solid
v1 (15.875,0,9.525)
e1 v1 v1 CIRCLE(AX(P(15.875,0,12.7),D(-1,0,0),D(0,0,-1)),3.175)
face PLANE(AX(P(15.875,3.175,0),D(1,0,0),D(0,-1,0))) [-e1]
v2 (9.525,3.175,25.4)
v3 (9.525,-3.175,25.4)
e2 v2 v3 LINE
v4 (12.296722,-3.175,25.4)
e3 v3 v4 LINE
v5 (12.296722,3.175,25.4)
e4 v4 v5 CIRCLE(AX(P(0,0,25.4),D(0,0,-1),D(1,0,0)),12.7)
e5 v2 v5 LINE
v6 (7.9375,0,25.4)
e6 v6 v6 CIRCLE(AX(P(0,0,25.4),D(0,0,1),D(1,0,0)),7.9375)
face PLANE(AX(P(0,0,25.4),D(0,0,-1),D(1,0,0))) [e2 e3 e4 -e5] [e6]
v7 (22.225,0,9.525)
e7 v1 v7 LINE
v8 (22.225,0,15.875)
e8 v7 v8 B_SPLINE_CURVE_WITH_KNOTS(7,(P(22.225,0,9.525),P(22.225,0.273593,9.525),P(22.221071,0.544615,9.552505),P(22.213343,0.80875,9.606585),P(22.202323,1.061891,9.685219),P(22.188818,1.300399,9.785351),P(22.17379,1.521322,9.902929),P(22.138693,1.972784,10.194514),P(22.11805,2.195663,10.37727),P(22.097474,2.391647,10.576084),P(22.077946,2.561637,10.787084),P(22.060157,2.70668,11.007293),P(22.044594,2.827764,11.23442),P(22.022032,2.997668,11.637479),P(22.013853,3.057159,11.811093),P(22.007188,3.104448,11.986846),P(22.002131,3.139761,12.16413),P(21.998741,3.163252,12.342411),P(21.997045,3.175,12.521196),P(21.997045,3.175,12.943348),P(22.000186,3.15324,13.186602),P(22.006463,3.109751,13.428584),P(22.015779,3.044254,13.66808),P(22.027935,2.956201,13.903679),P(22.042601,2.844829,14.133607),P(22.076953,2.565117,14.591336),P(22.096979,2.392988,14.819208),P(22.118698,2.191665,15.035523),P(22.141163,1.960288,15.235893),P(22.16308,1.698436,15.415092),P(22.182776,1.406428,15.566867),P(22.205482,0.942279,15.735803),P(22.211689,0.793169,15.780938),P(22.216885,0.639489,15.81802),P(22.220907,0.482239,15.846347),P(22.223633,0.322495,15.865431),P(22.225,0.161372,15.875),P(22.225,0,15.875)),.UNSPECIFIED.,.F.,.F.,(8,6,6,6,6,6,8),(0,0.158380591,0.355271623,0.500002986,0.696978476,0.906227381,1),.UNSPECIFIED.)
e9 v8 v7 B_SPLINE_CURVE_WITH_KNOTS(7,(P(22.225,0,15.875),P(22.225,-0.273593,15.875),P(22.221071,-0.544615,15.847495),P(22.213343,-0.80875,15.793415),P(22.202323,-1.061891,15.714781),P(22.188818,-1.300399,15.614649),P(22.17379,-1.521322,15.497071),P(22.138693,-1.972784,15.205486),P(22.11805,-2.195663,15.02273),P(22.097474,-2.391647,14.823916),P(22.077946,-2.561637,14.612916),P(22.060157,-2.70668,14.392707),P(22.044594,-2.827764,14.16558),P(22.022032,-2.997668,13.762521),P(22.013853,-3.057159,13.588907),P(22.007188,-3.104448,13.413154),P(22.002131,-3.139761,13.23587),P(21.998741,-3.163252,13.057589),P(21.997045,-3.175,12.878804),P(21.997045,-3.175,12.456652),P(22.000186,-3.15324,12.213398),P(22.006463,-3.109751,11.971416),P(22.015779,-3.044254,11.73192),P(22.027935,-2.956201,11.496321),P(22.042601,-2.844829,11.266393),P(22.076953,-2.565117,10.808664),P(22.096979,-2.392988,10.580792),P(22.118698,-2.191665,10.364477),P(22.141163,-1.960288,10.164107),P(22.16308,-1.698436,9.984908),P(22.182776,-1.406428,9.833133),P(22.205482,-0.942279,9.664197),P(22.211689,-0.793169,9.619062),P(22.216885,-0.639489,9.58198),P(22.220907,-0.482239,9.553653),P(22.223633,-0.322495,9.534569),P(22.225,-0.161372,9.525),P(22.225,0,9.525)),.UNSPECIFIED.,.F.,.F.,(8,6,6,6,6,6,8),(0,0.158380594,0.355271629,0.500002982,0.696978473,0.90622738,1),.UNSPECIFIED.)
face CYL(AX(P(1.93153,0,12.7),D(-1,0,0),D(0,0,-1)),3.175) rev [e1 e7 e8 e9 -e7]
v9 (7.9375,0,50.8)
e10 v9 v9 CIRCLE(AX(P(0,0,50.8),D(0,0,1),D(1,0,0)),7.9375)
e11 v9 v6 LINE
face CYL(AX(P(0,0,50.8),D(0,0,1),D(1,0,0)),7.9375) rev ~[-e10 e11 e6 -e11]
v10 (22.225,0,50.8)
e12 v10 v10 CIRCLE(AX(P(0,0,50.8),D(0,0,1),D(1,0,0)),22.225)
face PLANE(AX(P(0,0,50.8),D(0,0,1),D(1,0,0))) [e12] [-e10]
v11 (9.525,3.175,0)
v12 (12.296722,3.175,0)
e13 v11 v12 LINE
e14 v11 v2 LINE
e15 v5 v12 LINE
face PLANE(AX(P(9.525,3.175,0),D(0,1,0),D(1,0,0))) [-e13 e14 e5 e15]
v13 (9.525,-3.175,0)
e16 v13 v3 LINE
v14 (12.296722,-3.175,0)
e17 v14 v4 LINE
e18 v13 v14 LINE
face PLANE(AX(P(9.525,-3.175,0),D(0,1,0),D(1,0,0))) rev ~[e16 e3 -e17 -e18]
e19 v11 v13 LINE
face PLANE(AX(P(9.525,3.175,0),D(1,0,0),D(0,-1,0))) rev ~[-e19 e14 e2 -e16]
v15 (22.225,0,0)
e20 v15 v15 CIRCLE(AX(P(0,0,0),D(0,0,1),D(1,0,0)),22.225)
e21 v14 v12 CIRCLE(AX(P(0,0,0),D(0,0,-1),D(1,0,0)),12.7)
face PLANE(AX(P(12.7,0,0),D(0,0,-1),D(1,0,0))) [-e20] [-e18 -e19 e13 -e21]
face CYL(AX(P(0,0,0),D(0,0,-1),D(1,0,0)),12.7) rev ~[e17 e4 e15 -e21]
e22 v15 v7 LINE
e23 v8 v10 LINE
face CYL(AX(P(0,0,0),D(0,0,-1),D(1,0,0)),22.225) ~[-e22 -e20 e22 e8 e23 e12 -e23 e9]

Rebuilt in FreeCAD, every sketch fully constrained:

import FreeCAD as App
import Part
import Sketcher

V = App.Vector
Q = App.Units.Quantity

doc = App.newDocument("Part")
params = doc.addObject("Spreadsheet::Sheet", "Params")
for row, (alias, value) in enumerate([
    ("sketch1_diameter", "0.25 in"),
    ("pad1_length", "1 in"),
    ("sketch2_diameter", "1.75 in"),
    ("pad2_length", "2 in"),
    ("sketch3_diameter", "0.625 in"),
    ("sketch4_diameter", "1 in"),
    ("pocket2_length", "1 in"),
    ("sketch5_width", "0.25 in"),
    ("pad3_length", "1 in"),
], start=1):
    params.set(f"A{row}", alias)
    params.set(f"B{row}", "=" + value)
    params.setAlias(f"B{row}", alias)

body = doc.addObject("PartDesign::Body", "Body")

sketch1 = body.newObject("Sketcher::SketchObject", "Sketch")
sketch1.AttachmentSupport = (doc.getObject("XY_Plane"), [""])
sketch1.MapMode = "FlatFace"
sketch1.addGeometry(Part.Circle(V(0, 0, 0), V(0, 0, 1), 3.2), False)
sketch1.addConstraint(Sketcher.Constraint("Coincident", 0, 3, -1, 1))
sketch1.addConstraint(Sketcher.Constraint("Diameter", 0, Q("0.25 in")))
sketch1.setExpression("Constraints[1]", "Params.sketch1_diameter")
pad1 = body.newObject("PartDesign::Pad", "Pad")
pad1.Profile = sketch1
pad1.setExpression("Length", "Params.pad1_length")
body2 = doc.addObject("PartDesign::Body", "Body001")
doc.recompute()

body.Placement = App.Placement(V(0, 0, 0), App.Rotation(V(0, 1, 0), 90))
boolean = body2.newObject("PartDesign::Boolean", "Boolean")
boolean.Type = "Fuse"
boolean.addObjects([body])
body3 = doc.addObject("PartDesign::Body", "Body002")
doc.recompute()

body2.Placement = App.Placement(V(1.93153, 0, 12.7), App.Rotation(V(0, 0, 1), 0))
boolean2 = body3.newObject("PartDesign::Boolean", "Boolean001")
boolean2.Type = "Fuse"
boolean2.addObjects([body2])
body4 = doc.addObject("PartDesign::Body", "Body003")

sketch2 = body4.newObject("Sketcher::SketchObject", "Sketch001")
sketch2.AttachmentSupport = (doc.getObject("XY_Plane003"), [""])
sketch2.MapMode = "FlatFace"
sketch2.addGeometry(Part.Circle(V(0, 0, 0), V(0, 0, 1), 22), False)
sketch2.addConstraint(Sketcher.Constraint("Coincident", 0, 3, -1, 1))
sketch2.addConstraint(Sketcher.Constraint("Diameter", 0, Q("1.75 in")))
sketch2.setExpression("Constraints[1]", "Params.sketch2_diameter")
pad2 = body4.newObject("PartDesign::Pad", "Pad001")
pad2.Profile = sketch2
pad2.setExpression("Length", "Params.pad2_length")

sketch3 = body4.newObject("Sketcher::SketchObject", "Sketch002")
sketch3.AttachmentSupport = (doc.getObject("XY_Plane003"), [""])
sketch3.MapMode = "FlatFace"
sketch3.AttachmentOffset = App.Placement(V(0, 0, 2 * 25.4), App.Rotation())
sketch3.addGeometry(Part.Circle(V(0, 0, 0), V(0, 0, 1), 8), False)
sketch3.addConstraint(Sketcher.Constraint("Coincident", 0, 3, -1, 1))
sketch3.addConstraint(Sketcher.Constraint("Diameter", 0, Q("0.625 in")))
sketch3.setExpression("Constraints[1]", "Params.sketch3_diameter")
pocket1 = body4.newObject("PartDesign::Pocket", "Pocket")
pocket1.Profile = sketch3
pocket1.Type = "ThroughAll"
doc.recompute()

boolean3 = body4.newObject("PartDesign::Boolean", "Boolean002")
boolean3.Type = "Cut"
boolean3.addObjects([body3])

sketch4 = body4.newObject("Sketcher::SketchObject", "Sketch003")
sketch4.AttachmentSupport = (doc.getObject("XY_Plane003"), [""])
sketch4.MapMode = "FlatFace"
sketch4.addGeometry(Part.Circle(V(0, 0, 0), V(0, 0, 1), 13), False)
sketch4.addConstraint(Sketcher.Constraint("Coincident", 0, 3, -1, 1))
sketch4.addConstraint(Sketcher.Constraint("Diameter", 0, Q("1 in")))
sketch4.setExpression("Constraints[1]", "Params.sketch4_diameter")
pocket2 = body4.newObject("PartDesign::Pocket", "Pocket001")
pocket2.Profile = sketch4
pocket2.setExpression("Length", "Params.pocket2_length")
pocket2.Reversed = True

sketch5 = body4.newObject("Sketcher::SketchObject", "Sketch004")
sketch5.AttachmentSupport = (doc.getObject("XY_Plane003"), [""])
sketch5.MapMode = "FlatFace"
sketch5.addGeometry(Part.LineSegment(V(10, -3, 0), V(10, 3, 0)), False)
sketch5.addGeometry(Part.LineSegment(V(10, 3, 0), V(16, 3, 0)), False)
sketch5.addGeometry(Part.LineSegment(V(16, 3, 0), V(16, -3, 0)), False)
sketch5.addGeometry(Part.LineSegment(V(16, -3, 0), V(10, -3, 0)), False)
sketch5.addConstraint(Sketcher.Constraint("Coincident", 0, 2, 1, 1))
sketch5.addConstraint(Sketcher.Constraint("Coincident", 1, 2, 2, 1))
sketch5.addConstraint(Sketcher.Constraint("Coincident", 2, 2, 3, 1))
sketch5.addConstraint(Sketcher.Constraint("Coincident", 3, 2, 0, 1))
sketch5.addConstraint(Sketcher.Constraint("Vertical", 0))
sketch5.addConstraint(Sketcher.Constraint("Horizontal", 1))
sketch5.addConstraint(Sketcher.Constraint("Vertical", 2))
sketch5.addConstraint(Sketcher.Constraint("Horizontal", 3))
sketch5.addConstraint(Sketcher.Constraint("Equal", 3, 0))
sketch5.addConstraint(Sketcher.Constraint("DistanceX", 1, 1, 1, 2, Q("0.25 in")))
sketch5.addConstraint(Sketcher.Constraint("DistanceX", -1, 1, 0, 2, Q("0.375 in")))
sketch5.addConstraint(Sketcher.Constraint("DistanceY", -1, 1, 0, 2, Q("0.125 in")))
sketch5.setExpression("Constraints[9]", "Params.sketch5_width")
pad3 = body4.newObject("PartDesign::Pad", "Pad002")
pad3.Profile = sketch5
pad3.setExpression("Length", "Params.pad3_length")

doc.recompute()
